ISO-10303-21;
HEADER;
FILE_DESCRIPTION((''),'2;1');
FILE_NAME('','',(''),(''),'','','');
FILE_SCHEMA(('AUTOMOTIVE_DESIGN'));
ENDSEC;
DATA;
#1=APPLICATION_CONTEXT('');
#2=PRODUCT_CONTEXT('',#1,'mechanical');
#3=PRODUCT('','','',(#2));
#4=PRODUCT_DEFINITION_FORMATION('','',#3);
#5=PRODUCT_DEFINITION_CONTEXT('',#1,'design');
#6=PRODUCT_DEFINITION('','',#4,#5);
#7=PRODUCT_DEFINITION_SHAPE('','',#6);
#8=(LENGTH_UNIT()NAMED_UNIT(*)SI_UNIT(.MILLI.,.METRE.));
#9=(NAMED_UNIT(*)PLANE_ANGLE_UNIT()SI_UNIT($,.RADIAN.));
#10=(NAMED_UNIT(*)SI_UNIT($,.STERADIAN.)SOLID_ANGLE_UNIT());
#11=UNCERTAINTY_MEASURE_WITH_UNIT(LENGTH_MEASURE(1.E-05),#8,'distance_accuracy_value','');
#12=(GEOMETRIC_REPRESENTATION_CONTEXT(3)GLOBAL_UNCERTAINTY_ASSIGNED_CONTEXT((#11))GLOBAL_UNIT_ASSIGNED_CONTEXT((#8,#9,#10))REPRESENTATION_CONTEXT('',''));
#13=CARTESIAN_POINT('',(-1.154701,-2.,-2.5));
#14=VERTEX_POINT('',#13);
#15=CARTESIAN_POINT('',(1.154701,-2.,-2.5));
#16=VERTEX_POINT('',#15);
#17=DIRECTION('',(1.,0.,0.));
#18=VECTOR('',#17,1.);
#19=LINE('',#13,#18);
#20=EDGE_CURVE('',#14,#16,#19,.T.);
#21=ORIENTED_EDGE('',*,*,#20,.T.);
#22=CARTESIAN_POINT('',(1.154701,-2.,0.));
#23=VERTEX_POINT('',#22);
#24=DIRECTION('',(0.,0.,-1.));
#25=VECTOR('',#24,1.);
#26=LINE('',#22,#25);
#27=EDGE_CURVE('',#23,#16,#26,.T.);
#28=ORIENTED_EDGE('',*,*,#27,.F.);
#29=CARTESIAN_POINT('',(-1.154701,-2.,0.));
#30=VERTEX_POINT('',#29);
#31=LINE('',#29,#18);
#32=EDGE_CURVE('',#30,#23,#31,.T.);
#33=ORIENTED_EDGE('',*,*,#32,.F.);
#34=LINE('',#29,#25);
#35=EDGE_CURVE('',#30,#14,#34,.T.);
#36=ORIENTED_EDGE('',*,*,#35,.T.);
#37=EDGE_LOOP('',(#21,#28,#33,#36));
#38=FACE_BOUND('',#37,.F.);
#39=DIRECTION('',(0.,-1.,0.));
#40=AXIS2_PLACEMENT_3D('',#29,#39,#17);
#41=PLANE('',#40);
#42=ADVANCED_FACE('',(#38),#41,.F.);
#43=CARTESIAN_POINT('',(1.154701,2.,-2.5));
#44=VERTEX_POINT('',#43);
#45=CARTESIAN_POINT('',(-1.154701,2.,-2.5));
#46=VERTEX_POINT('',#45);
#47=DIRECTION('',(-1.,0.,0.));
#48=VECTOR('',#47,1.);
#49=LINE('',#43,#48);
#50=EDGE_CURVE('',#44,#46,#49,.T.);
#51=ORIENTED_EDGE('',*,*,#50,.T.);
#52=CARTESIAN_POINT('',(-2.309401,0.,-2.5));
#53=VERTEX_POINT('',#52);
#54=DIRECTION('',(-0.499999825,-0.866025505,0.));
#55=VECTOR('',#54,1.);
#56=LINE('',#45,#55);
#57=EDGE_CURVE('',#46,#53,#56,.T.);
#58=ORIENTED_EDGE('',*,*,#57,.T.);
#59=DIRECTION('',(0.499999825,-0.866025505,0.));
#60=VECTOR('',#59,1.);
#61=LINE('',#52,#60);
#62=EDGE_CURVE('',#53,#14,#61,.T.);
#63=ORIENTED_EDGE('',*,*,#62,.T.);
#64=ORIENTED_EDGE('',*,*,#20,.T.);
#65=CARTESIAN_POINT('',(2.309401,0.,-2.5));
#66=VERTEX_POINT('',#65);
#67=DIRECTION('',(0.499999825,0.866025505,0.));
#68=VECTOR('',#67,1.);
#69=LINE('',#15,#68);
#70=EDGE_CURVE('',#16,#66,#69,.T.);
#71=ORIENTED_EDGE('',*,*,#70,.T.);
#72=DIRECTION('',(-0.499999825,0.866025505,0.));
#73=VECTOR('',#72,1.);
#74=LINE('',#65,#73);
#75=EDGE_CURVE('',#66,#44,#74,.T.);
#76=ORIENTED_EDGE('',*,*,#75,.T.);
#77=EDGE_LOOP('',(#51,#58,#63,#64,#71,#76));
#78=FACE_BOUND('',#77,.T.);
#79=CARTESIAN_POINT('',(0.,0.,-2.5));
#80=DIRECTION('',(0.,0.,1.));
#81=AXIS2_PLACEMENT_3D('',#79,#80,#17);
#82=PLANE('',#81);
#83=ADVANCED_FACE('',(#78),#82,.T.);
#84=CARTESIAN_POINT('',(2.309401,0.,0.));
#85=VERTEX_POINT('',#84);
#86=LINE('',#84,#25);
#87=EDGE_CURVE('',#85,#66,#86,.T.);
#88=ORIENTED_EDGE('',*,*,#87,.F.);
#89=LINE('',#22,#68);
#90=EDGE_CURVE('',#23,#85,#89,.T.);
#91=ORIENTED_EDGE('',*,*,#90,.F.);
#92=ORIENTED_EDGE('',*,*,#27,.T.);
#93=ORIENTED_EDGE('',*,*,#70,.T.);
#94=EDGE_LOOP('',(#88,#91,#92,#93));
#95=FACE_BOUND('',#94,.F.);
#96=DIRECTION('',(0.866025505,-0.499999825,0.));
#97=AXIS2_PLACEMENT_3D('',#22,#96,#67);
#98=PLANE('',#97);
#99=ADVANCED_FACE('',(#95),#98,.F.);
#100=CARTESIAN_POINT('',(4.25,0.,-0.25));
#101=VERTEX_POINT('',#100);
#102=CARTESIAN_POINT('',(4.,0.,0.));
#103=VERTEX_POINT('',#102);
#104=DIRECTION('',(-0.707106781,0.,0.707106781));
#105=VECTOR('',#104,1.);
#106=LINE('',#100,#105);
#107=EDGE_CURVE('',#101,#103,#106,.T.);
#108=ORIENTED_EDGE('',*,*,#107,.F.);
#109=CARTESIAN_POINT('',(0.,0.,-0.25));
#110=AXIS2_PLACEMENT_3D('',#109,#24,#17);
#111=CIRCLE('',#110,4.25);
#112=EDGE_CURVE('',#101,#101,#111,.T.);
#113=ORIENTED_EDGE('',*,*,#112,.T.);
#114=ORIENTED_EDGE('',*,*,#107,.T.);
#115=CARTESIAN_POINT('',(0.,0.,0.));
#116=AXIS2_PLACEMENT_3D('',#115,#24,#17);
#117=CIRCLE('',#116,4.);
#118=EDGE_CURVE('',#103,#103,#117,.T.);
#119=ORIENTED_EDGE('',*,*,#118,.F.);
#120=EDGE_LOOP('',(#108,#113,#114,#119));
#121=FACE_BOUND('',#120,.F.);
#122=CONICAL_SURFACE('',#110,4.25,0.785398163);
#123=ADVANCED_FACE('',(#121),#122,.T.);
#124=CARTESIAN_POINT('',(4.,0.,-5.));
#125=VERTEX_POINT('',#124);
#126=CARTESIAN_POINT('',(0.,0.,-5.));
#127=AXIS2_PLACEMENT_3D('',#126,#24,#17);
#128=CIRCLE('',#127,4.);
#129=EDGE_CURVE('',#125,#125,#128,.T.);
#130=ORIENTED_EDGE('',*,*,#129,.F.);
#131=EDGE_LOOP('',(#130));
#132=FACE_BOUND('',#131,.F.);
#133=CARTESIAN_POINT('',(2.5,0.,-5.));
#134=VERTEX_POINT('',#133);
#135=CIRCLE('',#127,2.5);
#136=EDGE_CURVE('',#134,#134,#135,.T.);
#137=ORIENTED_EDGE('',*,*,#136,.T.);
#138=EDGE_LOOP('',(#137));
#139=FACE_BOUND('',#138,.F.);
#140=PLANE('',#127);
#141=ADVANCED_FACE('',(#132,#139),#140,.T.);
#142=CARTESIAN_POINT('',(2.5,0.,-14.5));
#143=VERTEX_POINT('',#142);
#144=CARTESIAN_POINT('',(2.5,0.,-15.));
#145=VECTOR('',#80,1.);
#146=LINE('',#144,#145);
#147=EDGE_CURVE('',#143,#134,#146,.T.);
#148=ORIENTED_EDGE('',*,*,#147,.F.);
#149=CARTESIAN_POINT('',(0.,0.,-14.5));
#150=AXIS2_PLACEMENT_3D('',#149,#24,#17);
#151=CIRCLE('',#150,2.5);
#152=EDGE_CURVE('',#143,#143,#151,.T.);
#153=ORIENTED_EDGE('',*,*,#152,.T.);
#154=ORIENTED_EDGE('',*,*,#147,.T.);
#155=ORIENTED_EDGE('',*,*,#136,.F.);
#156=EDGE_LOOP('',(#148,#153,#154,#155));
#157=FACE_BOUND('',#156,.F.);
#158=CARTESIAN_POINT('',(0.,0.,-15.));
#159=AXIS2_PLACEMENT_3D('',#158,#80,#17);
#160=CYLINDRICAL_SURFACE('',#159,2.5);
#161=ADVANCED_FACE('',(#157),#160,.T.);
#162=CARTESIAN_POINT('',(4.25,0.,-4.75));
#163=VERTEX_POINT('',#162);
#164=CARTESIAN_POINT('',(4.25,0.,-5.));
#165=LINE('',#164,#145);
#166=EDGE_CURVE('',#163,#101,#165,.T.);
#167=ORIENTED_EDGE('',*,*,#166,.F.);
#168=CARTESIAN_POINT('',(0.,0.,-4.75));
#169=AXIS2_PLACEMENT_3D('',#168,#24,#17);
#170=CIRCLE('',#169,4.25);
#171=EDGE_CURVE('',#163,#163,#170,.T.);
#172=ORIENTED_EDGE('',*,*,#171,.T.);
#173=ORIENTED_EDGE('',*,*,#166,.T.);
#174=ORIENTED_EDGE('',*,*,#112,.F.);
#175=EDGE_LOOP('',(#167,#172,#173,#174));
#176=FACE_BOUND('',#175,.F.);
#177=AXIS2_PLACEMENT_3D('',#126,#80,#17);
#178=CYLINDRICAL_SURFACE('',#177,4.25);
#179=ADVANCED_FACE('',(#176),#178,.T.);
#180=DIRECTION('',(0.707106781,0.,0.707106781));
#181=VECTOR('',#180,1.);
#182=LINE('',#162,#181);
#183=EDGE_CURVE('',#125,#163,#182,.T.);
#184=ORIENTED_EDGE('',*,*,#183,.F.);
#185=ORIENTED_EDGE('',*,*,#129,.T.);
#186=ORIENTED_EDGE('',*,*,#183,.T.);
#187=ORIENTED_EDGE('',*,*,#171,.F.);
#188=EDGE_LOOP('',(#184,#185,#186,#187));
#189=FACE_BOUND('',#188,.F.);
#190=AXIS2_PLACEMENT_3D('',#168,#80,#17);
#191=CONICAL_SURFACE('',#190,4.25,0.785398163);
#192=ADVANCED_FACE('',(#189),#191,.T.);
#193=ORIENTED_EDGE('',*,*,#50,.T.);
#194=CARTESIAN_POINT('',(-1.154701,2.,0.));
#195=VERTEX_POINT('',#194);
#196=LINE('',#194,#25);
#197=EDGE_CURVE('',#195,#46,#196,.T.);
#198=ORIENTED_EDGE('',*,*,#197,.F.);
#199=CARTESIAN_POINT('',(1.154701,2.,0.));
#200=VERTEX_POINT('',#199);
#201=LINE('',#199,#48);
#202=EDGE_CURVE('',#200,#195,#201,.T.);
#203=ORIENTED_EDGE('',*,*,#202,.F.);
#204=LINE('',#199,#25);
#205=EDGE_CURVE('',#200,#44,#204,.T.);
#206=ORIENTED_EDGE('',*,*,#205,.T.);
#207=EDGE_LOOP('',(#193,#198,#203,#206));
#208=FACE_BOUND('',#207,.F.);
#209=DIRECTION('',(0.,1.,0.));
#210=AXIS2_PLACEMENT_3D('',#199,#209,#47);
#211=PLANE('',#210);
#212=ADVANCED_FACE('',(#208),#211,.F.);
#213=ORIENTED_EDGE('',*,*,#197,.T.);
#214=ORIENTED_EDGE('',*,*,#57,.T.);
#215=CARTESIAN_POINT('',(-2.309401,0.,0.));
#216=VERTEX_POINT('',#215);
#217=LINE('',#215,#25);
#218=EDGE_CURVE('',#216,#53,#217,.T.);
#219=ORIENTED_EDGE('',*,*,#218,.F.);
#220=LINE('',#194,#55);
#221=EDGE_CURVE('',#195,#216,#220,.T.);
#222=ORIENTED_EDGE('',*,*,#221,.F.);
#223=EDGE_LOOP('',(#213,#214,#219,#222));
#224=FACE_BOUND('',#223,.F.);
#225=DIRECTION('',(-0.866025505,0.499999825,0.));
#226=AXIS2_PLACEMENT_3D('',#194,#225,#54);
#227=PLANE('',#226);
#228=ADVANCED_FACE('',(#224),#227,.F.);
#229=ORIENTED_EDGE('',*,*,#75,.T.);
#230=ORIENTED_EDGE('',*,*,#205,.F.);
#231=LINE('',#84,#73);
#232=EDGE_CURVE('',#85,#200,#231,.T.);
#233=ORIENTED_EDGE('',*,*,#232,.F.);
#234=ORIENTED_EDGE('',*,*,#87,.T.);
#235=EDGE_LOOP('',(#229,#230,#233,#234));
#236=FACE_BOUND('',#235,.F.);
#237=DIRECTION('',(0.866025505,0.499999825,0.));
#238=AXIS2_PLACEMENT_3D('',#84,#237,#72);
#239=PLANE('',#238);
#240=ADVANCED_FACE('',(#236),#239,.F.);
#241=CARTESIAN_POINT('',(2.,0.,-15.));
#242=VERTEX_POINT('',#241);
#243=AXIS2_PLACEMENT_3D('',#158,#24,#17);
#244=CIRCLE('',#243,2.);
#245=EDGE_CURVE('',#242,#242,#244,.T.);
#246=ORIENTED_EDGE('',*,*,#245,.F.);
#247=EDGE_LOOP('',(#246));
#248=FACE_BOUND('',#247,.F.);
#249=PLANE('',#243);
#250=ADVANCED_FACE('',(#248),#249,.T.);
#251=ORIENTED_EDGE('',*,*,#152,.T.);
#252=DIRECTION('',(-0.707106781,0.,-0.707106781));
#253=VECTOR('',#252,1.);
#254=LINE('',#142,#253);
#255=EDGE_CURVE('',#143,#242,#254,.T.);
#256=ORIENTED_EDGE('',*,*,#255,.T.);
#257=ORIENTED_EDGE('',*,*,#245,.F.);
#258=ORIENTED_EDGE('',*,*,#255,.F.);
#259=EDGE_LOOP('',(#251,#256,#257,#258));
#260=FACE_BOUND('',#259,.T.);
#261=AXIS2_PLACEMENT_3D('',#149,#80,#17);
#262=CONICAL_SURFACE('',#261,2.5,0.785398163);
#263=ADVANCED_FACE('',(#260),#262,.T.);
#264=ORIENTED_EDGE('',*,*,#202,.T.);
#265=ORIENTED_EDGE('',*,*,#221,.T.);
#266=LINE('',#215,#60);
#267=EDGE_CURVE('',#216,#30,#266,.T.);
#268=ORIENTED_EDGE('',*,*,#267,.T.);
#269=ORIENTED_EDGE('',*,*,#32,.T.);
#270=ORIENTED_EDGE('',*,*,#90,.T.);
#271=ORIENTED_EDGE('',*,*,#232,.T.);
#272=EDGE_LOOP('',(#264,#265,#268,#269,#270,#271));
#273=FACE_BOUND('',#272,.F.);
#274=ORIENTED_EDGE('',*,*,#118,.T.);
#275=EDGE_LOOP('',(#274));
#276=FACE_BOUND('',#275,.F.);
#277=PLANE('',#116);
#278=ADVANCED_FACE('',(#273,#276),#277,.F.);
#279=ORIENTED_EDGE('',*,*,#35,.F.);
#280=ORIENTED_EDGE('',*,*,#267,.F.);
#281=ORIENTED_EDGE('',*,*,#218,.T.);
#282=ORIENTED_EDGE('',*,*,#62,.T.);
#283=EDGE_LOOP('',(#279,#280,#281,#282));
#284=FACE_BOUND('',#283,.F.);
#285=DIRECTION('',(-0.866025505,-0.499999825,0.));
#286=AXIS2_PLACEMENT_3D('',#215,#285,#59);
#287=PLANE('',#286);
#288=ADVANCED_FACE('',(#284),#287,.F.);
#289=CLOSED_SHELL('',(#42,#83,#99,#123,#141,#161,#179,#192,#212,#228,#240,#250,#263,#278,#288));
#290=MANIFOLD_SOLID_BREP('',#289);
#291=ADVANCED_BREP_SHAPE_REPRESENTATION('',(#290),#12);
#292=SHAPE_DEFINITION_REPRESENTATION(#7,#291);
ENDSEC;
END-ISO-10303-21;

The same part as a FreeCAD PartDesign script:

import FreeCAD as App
import Part
import Sketcher
Q = App.Units.Quantity


def edges_at(feature, points):
    """Names of the edges that pass closest to the given points."""
    edges = feature.Shape.Edges
    near = lambda p: min(range(len(edges)), key=lambda i: edges[i].distToShape(Part.Vertex(*p))[0])
    return sorted({f"Edge{near(p) + 1}" for p in points})


def add_polygon(sketch, points):
    """Adds a closed chain of lines whose ends are joined by coincident constraints."""
    first, n = sketch.GeometryCount, len(points)
    for a, b in zip(points, points[1:] + points[:1]):
        sketch.addGeometry(Part.LineSegment(App.Vector(*a, 0), App.Vector(*b, 0)), False)
    for i in range(n):
        sketch.addConstraint(Sketcher.Constraint("Coincident", first + i, 2, first + (i + 1) % n, 1))

doc = App.newDocument("Part")
body = doc.addObject("PartDesign::Body", "Body")

sketch1 = body.newObject("Sketcher::SketchObject", "Sketch")
sketch1.AttachmentSupport = (doc.getObject("XZ_Plane"), [""])
sketch1.MapMode = "FlatFace"
add_polygon(sketch1, [(4.2, 0), (0, 0), (0, -15), (2.5, -15), (2.5, -5), (4.2, -5)])
sketch1.addConstraint([
    Sketcher.Constraint("Horizontal", 0),
    Sketcher.Constraint("Vertical", 1),
    Sketcher.Constraint("Horizontal", 2),
    Sketcher.Constraint("Vertical", 3),
    Sketcher.Constraint("Horizontal", 4),
    Sketcher.Constraint("Vertical", 5),
    Sketcher.Constraint("Coincident", 0, 2, -1, 1),
    Sketcher.Constraint("DistanceY", 1, 2, 1, 1, 15.0),
    Sketcher.Constraint("DistanceY", 3, 1, 3, 2, 10.0),
    Sketcher.Constraint("DistanceX", 2, 1, 2, 2, 2.5),
    Sketcher.Constraint("DistanceX", 0, 2, 0, 1, 4.25),
])
revolution = body.newObject("PartDesign::Revolution", "Revolution")
revolution.Profile = sketch1
revolution.ReferenceAxis = (sketch1, ["V_Axis"])
revolution.Angle = 360

sketch2 = body.newObject("Sketcher::SketchObject", "Sketch001")
sketch2.AttachmentSupport = (doc.getObject("XY_Plane"), [""])
sketch2.MapMode = "FlatFace"
add_polygon(sketch2, [(1.2, 2), (-1.2, 2), (-2.3, 0), (-1.2, -2), (1.2, -2), (2.3, 0)])
sketch2.addConstraint([
    Sketcher.Constraint("Horizontal", 0),
    Sketcher.Constraint("Horizontal", 3),
    Sketcher.Constraint("Symmetric", 0, 2, 3, 2, -1, 1),
    Sketcher.Constraint("Symmetric", 1, 2, 4, 2, -1, 1),
    Sketcher.Constraint("PointOnObject", 1, 2, -1),
    Sketcher.Constraint("Parallel", 2, 5),
    Sketcher.Constraint("Vertical", 0, 2, 2, 2),
    Sketcher.Constraint("Angle", 1, Q("-119.999988 deg")),
    Sketcher.Constraint("DistanceY", -1, 1, 0, 2, 2.0),
    Sketcher.Constraint("DistanceX", 0, 2, 0, 1, 2.309402),
])
pocket1 = body.newObject("PartDesign::Pocket", "Pocket")
pocket1.Profile = sketch2
pocket1.Length = 2.5
doc.recompute()

chamfer = body.newObject("PartDesign::Chamfer", "Chamfer")
chamfer.Base = (pocket1, edges_at(pocket1, [(-2.5, 0, -15)]))
chamfer.Size = 0.5
doc.recompute()

chamfer2 = body.newObject("PartDesign::Chamfer", "Chamfer001")
chamfer2.Base = (chamfer, edges_at(chamfer, [(-4.25, 0, 0), (-4.25, 0, -5)]))
chamfer2.Size = 0.25

doc.recompute()
